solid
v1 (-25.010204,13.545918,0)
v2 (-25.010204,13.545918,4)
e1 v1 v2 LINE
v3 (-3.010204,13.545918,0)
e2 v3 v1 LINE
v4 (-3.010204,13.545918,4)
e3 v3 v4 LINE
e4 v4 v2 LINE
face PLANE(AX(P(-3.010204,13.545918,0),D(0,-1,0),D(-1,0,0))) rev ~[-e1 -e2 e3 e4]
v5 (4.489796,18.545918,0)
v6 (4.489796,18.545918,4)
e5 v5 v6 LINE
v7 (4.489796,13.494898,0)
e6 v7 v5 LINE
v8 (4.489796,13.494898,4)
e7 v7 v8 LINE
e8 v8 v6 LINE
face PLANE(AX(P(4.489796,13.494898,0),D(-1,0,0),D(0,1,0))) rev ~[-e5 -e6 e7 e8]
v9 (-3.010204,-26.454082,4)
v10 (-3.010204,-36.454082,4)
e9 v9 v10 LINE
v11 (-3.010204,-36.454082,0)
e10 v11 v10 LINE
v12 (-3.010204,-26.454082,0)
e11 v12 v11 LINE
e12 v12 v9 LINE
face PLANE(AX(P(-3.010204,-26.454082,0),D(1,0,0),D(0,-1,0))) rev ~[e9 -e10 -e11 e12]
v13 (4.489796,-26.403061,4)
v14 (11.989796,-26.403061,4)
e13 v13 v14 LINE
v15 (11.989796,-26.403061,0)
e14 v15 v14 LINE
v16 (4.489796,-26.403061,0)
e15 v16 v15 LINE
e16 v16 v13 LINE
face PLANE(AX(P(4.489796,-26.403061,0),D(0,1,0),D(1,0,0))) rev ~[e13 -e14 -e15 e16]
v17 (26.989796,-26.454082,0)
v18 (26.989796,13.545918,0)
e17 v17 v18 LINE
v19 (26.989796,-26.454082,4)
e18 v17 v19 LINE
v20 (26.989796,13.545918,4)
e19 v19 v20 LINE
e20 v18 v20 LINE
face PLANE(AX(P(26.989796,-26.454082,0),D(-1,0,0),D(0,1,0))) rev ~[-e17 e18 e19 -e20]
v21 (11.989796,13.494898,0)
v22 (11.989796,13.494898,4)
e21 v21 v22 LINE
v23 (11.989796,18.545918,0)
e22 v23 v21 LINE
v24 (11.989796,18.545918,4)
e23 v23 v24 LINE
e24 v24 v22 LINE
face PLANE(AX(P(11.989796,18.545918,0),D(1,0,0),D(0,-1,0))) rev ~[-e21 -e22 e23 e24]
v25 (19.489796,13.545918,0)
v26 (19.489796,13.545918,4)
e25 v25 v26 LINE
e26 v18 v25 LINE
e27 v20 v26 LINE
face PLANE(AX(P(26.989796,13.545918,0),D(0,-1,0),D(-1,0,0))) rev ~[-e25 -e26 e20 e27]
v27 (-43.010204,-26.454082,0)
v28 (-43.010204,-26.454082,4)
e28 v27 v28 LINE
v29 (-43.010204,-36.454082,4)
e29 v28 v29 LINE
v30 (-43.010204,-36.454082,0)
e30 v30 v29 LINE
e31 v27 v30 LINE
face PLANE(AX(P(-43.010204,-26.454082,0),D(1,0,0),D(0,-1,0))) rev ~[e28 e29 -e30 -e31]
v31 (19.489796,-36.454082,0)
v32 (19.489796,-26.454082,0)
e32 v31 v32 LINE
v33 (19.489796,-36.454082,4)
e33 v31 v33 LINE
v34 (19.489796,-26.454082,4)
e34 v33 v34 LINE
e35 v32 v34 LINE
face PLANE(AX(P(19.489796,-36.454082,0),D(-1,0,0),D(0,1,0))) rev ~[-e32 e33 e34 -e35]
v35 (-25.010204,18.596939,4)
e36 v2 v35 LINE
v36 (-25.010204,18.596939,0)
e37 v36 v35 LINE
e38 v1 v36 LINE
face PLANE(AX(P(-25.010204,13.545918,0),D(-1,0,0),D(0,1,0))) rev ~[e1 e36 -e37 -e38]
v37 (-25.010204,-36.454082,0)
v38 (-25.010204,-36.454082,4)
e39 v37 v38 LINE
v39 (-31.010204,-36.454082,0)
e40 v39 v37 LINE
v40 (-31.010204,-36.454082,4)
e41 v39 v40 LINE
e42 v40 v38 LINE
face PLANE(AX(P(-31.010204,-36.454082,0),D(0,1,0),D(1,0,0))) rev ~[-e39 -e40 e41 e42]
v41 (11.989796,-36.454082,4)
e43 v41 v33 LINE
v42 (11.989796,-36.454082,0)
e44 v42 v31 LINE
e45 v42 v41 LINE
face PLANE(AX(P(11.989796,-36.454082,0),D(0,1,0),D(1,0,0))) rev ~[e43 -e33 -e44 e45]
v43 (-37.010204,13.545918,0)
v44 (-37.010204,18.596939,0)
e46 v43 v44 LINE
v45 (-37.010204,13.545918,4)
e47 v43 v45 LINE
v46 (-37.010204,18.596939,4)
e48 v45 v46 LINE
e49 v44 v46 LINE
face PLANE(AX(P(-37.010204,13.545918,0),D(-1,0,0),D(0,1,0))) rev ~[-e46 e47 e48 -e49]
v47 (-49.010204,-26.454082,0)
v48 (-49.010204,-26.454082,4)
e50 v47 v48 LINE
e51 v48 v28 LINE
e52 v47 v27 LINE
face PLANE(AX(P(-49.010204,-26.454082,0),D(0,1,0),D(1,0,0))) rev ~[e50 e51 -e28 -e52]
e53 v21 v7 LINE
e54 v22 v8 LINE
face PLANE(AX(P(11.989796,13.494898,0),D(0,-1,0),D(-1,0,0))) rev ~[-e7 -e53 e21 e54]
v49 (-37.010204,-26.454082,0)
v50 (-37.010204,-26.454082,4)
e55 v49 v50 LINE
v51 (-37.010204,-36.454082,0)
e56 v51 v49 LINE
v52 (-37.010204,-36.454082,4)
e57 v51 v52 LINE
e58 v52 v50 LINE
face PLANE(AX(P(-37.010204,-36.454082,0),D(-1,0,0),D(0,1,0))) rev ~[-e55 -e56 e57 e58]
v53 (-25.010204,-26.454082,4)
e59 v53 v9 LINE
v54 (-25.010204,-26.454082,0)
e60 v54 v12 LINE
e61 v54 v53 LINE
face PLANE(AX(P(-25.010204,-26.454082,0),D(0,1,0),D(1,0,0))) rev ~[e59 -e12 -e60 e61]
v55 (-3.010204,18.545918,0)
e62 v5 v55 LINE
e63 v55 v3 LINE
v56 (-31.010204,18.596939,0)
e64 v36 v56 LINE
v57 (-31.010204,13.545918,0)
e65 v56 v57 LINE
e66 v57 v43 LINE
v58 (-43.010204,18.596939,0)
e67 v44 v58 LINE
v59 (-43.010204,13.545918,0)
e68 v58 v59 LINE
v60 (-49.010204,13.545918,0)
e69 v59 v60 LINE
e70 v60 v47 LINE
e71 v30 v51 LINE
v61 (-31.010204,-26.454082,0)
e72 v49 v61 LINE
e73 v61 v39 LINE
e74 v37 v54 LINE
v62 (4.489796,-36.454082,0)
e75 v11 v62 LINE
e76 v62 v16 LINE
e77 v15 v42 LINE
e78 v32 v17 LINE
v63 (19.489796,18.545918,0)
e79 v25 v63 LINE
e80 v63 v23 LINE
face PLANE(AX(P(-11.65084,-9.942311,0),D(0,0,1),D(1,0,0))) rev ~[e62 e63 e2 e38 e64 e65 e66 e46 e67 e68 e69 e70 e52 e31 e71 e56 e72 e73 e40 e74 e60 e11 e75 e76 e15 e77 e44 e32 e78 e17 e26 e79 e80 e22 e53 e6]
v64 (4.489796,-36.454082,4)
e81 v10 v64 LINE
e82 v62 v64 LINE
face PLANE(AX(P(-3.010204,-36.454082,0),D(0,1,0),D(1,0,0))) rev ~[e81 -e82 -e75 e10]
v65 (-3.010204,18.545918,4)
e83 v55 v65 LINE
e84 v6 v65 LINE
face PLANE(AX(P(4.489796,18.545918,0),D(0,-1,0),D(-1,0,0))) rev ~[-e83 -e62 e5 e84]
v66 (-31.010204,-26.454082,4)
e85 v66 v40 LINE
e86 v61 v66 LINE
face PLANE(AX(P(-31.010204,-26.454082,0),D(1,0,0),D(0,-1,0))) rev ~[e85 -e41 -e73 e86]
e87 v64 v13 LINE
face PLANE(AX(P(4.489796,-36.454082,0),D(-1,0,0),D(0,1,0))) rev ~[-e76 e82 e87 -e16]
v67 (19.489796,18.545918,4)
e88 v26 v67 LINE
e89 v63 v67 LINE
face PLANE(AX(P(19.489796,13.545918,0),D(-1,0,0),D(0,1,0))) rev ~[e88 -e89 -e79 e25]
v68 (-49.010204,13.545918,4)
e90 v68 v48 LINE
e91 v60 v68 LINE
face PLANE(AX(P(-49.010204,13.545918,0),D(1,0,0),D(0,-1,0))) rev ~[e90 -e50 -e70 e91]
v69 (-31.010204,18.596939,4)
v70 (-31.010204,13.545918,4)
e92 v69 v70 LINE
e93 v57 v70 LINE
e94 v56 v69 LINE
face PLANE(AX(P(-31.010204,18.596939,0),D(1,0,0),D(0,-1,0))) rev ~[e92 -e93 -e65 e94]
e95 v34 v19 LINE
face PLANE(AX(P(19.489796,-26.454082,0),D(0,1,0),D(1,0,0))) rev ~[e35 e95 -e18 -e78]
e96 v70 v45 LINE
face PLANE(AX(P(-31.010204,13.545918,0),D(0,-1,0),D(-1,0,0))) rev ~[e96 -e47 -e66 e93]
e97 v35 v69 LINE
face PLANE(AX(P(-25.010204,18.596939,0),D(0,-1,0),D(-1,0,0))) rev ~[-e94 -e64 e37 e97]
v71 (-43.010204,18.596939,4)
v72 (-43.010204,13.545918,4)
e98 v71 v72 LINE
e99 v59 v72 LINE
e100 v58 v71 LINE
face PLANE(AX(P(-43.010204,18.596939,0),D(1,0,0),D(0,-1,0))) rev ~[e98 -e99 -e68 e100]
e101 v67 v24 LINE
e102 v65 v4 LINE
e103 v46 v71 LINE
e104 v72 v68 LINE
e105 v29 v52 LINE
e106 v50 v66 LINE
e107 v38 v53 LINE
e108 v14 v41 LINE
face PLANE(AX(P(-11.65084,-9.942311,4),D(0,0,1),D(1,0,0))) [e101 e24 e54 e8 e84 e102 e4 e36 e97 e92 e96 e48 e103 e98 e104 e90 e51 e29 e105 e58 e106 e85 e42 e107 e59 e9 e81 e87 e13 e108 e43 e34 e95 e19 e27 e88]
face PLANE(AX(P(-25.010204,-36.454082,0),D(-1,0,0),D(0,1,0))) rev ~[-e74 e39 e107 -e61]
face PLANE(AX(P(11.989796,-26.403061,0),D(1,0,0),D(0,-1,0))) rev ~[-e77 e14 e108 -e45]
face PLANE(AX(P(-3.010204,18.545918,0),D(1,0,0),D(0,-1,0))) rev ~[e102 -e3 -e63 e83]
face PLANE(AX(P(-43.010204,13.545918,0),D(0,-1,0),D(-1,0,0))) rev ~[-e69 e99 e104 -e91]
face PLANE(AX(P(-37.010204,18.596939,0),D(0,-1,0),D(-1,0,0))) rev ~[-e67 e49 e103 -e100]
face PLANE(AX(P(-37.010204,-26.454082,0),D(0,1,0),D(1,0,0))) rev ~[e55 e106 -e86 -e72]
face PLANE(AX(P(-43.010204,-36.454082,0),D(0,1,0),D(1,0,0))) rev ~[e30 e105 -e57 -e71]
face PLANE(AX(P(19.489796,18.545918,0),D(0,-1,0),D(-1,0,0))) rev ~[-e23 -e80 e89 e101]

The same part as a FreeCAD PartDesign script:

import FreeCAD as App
import Part
import Sketcher
Q = App.Units.Quantity

doc = App.newDocument("Part")
body = doc.addObject("PartDesign::Body", "Body")

# Sketch on XY plane
sketch1 = body.newObject("Sketcher::SketchObject", "Sketch")
sketch1.AttachmentSupport = (doc.getObject("XY_Plane"), [""])
sketch1.MapMode = "FlatFace"
sketch1.addGeometry([
    Part.LineSegment(App.Vector(27, 13.5, 0), App.Vector(19.5, 13.5, 0)),  # 0
    Part.LineSegment(App.Vector(19.5, 13.5, 0), App.Vector(19.5, 18.5, 0)),  # 1
    Part.LineSegment(App.Vector(19.5, 18.5, 0), App.Vector(12, 18.5, 0)),  # 2
    Part.LineSegment(App.Vector(12, 18.5, 0), App.Vector(12, 13.5, 0)),  # 3
    Part.LineSegment(App.Vector(12, 13.5, 0), App.Vector(4.5, 13.5, 0)),  # 4
    Part.LineSegment(App.Vector(4.5, 13.5, 0), App.Vector(4.5, 18.5, 0)),  # 5
    Part.LineSegment(App.Vector(4.5, 18.5, 0), App.Vector(-3, 18.5, 0)),  # 6
    Part.LineSegment(App.Vector(-3, 18.5, 0), App.Vector(-3, 13.5, 0)),  # 7
    Part.LineSegment(App.Vector(-3, 13.5, 0), App.Vector(-25, 13.5, 0)),  # 8
    Part.LineSegment(App.Vector(-25, 13.5, 0), App.Vector(-25, 18.6, 0)),  # 9
    Part.LineSegment(App.Vector(-25, 18.6, 0), App.Vector(-31, 18.6, 0)),  # 10
    Part.LineSegment(App.Vector(-31, 18.6, 0), App.Vector(-31, 13.5, 0)),  # 11
    Part.LineSegment(App.Vector(-31, 13.5, 0), App.Vector(-37, 13.5, 0)),  # 12
    Part.LineSegment(App.Vector(-37, 13.5, 0), App.Vector(-37, 18.6, 0)),  # 13
    Part.LineSegment(App.Vector(-37, 18.6, 0), App.Vector(-43, 18.6, 0)),  # 14
    Part.LineSegment(App.Vector(-43, 18.6, 0), App.Vector(-43, 13.5, 0)),  # 15
    Part.LineSegment(App.Vector(-43, 13.5, 0), App.Vector(-49, 13.5, 0)),  # 16
    Part.LineSegment(App.Vector(-49, 13.5, 0), App.Vector(-49, -26.5, 0)),  # 17
    Part.LineSegment(App.Vector(-49, -26.5, 0), App.Vector(-43, -26.5, 0)),  # 18
    Part.LineSegment(App.Vector(-43, -26.5, 0), App.Vector(-43, -36.5, 0)),  # 19
    Part.LineSegment(App.Vector(-43, -36.5, 0), App.Vector(-37, -36.5, 0)),  # 20
    Part.LineSegment(App.Vector(-37, -36.5, 0), App.Vector(-37, -26.5, 0)),  # 21
    Part.LineSegment(App.Vector(-37, -26.5, 0), App.Vector(-31, -26.5, 0)),  # 22
    Part.LineSegment(App.Vector(-31, -26.5, 0), App.Vector(-31, -36.5, 0)),  # 23
    Part.LineSegment(App.Vector(-31, -36.5, 0), App.Vector(-25, -36.5, 0)),  # 24
    Part.LineSegment(App.Vector(-25, -36.5, 0), App.Vector(-25, -26.5, 0)),  # 25
    Part.LineSegment(App.Vector(-25, -26.5, 0), App.Vector(-3, -26.5, 0)),  # 26
    Part.LineSegment(App.Vector(-3, -26.5, 0), App.Vector(-3, -36.5, 0)),  # 27
    Part.LineSegment(App.Vector(-3, -36.5, 0), App.Vector(4.5, -36.5, 0)),  # 28
    Part.LineSegment(App.Vector(4.5, -36.5, 0), App.Vector(4.5, -26.4, 0)),  # 29
    Part.LineSegment(App.Vector(4.5, -26.4, 0), App.Vector(12, -26.4, 0)),  # 30
    Part.LineSegment(App.Vector(12, -26.4, 0), App.Vector(12, -36.5, 0)),  # 31
    Part.LineSegment(App.Vector(12, -36.5, 0), App.Vector(19.5, -36.5, 0)),  # 32
    Part.LineSegment(App.Vector(19.5, -36.5, 0), App.Vector(19.5, -26.5, 0)),  # 33
    Part.LineSegment(App.Vector(19.5, -26.5, 0), App.Vector(27, -26.5, 0)),  # 34
    Part.LineSegment(App.Vector(27, -26.5, 0), App.Vector(27, 13.5, 0)),  # 35
], False)
sketch1.addConstraint([
    Sketcher.Constraint("Coincident", 0, 2, 1, 1),
    Sketcher.Constraint("Coincident", 1, 2, 2, 1),
    Sketcher.Constraint("Coincident", 2, 2, 3, 1),
    Sketcher.Constraint("Coincident", 3, 2, 4, 1),
    Sketcher.Constraint("Coincident", 4, 2, 5, 1),
    Sketcher.Constraint("Coincident", 5, 2, 6, 1),
    Sketcher.Constraint("Coincident", 6, 2, 7, 1),
    Sketcher.Constraint("Coincident", 7, 2, 8, 1),
    Sketcher.Constraint("Coincident", 8, 2, 9, 1),
    Sketcher.Constraint("Coincident", 9, 2, 10, 1),
    Sketcher.Constraint("Coincident", 10, 2, 11, 1),
    Sketcher.Constraint("Coincident", 11, 2, 12, 1),
    Sketcher.Constraint("Coincident", 12, 2, 13, 1),
    Sketcher.Constraint("Coincident", 13, 2, 14, 1),
    Sketcher.Constraint("Coincident", 14, 2, 15, 1),
    Sketcher.Constraint("Coincident", 15, 2, 16, 1),
    Sketcher.Constraint("Coincident", 16, 2, 17, 1),
    Sketcher.Constraint("Coincident", 17, 2, 18, 1),
    Sketcher.Constraint("Coincident", 18, 2, 19, 1),
    Sketcher.Constraint("Coincident", 19, 2, 20, 1),
    Sketcher.Constraint("Coincident", 20, 2, 21, 1),
    Sketcher.Constraint("Coincident", 21, 2, 22, 1),
    Sketcher.Constraint("Coincident", 22, 2, 23, 1),
    Sketcher.Constraint("Coincident", 23, 2, 24, 1),
    Sketcher.Constraint("Coincident", 24, 2, 25, 1),
    Sketcher.Constraint("Coincident", 25, 2, 26, 1),
    Sketcher.Constraint("Coincident", 26, 2, 27, 1),
    Sketcher.Constraint("Coincident", 27, 2, 28, 1),
    Sketcher.Constraint("Coincident", 28, 2, 29, 1),
    Sketcher.Constraint("Coincident", 29, 2, 30, 1),
    Sketcher.Constraint("Coincident", 30, 2, 31, 1),
    Sketcher.Constraint("Coincident", 31, 2, 32, 1),
    Sketcher.Constraint("Coincident", 32, 2, 33, 1),
    Sketcher.Constraint("Coincident", 33, 2, 34, 1),
    Sketcher.Constraint("Coincident", 34, 2, 35, 1),
    Sketcher.Constraint("Coincident", 35, 2, 0, 1),
    Sketcher.Constraint("Horizontal", 0),
    Sketcher.Constraint("Vertical", 1),
    Sketcher.Constraint("Horizontal", 2),
    Sketcher.Constraint("Vertical", 3),
    Sketcher.Constraint("Horizontal", 4),
    Sketcher.Constraint("Vertical", 5),
    Sketcher.Constraint("Horizontal", 6),
    Sketcher.Constraint("Vertical", 7),
    Sketcher.Constraint("Horizontal", 8),
    Sketcher.Constraint("Vertical", 9),
    Sketcher.Constraint("Horizontal", 10),
    Sketcher.Constraint("Vertical", 11),
    Sketcher.Constraint("Horizontal", 12),
    Sketcher.Constraint("Vertical", 13),
    Sketcher.Constraint("Horizontal", 14),
    Sketcher.Constraint("Vertical", 15),
    Sketcher.Constraint("Horizontal", 16),
    Sketcher.Constraint("Vertical", 17),
    Sketcher.Constraint("Horizontal", 18),
    Sketcher.Constraint("Vertical", 19),
    Sketcher.Constraint("Horizontal", 20),
    Sketcher.Constraint("Vertical", 21),
    Sketcher.Constraint("Horizontal", 22),
    Sketcher.Constraint("Vertical", 23),
    Sketcher.Constraint("Horizontal", 24),
    Sketcher.Constraint("Vertical", 25),
    Sketcher.Constraint("Horizontal", 26),
    Sketcher.Constraint("Vertical", 27),
    Sketcher.Constraint("Horizontal", 28),
    Sketcher.Constraint("Vertical", 29),
    Sketcher.Constraint("Horizontal", 30),
    Sketcher.Constraint("Vertical", 31),
    Sketcher.Constraint("Horizontal", 32),
    Sketcher.Constraint("Vertical", 33),
    Sketcher.Constraint("Horizontal", 34),
    Sketcher.Constraint("Vertical", 35),
    Sketcher.Constraint("Horizontal", 2, 2, 5, 2),
    Sketcher.Constraint("Horizontal", 0, 2, 7, 2),
    Sketcher.Constraint("Horizontal", 8, 2, 11, 2),
    Sketcher.Constraint("Horizontal", 10, 2, 13, 2),
    Sketcher.Constraint("Horizontal", 12, 2, 15, 2),
    Sketcher.Constraint("Horizontal", 18, 2, 21, 2),
    Sketcher.Constraint("Horizontal", 20, 2, 23, 2),
    Sketcher.Constraint("Horizontal", 22, 2, 25, 2),
    Sketcher.Constraint("Horizontal", 24, 2, 27, 2),
    Sketcher.Constraint("Horizontal", 28, 2, 31, 2),
    Sketcher.Constraint("Horizontal", 26, 2, 33, 2),
    Sketcher.Constraint("Vertical", 15, 2, 18, 2),
    Sketcher.Constraint("Vertical", 13, 2, 20, 2),
    Sketcher.Constraint("Vertical", 11, 2, 22, 2),
    Sketcher.Constraint("Vertical", 9, 2, 24, 2),
    Sketcher.Constraint("Vertical", 7, 2, 26, 2),
    Sketcher.Constraint("Vertical", 5, 2, 28, 2),
    Sketcher.Constraint("Vertical", 3, 2, 30, 2),
    Sketcher.Constraint("Vertical", 1, 2, 32, 2),
    Sketcher.Constraint("Equal", 0, 2),
    Sketcher.Constraint("Equal", 2, 4),
    Sketcher.Constraint("Equal", 4, 6),
    Sketcher.Constraint("Equal", 10, 12),
    Sketcher.Constraint("Equal", 12, 14),
    Sketcher.Constraint("Equal", 14, 16),
    Sketcher.Constraint("Equal", 5, 9),
    Sketcher.Constraint("DistanceX", 8, 2, 8, 1, Q("22 mm")),
    Sketcher.Constraint("DistanceX", 10, 2, 10, 1, Q("6 mm")),
    Sketcher.Constraint("DistanceY", 1, 1, 1, 2, Q("5 mm")),
    Sketcher.Constraint("DistanceY", 17, 2, 17, 1, Q("40 mm")),
    Sketcher.Constraint("DistanceY", 19, 2, 19, 1, Q("10 mm")),
    Sketcher.Constraint("DistanceX", 0, 2, 0, 1, Q("7.5 mm")),
    Sketcher.Constraint("DistanceY", 3, 2, 3, 1, Q("5.05102 mm")),
    Sketcher.Constraint("DistanceY", 29, 1, 29, 2, Q("10.05102 mm")),
    Sketcher.Constraint("DistanceY", -1, 1, 0, 2, Q("13.545918 mm")),
    Sketcher.Constraint("DistanceX", -1, 1, 0, 2, Q("19.489796 mm")),
])
pad1 = body.newObject("PartDesign::Pad", "Pad")
pad1.Profile = sketch1
pad1.Length = 4

doc.recompute()
